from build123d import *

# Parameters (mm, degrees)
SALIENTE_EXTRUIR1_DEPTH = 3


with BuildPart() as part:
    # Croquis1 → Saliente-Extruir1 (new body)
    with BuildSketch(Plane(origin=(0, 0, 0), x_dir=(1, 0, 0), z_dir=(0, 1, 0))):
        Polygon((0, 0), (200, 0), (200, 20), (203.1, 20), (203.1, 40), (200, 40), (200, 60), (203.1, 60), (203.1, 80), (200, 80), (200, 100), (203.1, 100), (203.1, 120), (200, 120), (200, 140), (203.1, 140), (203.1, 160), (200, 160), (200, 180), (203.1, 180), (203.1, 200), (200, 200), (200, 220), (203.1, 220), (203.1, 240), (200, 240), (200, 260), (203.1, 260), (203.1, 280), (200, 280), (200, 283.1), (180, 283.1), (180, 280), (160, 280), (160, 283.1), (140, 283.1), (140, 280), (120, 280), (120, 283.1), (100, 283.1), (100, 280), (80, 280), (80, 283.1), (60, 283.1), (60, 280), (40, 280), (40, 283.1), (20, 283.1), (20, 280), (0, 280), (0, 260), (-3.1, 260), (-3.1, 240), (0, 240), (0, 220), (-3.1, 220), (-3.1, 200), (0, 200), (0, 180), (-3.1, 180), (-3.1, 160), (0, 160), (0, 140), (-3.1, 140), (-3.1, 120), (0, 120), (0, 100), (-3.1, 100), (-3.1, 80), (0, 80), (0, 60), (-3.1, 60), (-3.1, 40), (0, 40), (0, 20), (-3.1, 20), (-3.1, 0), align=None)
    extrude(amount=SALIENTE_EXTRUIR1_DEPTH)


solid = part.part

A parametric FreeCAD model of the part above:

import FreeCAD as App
import Part
import Sketcher

doc = App.newDocument("Part")
body = doc.addObject("PartDesign::Body", "Body")

sketch1 = body.newObject("Sketcher::SketchObject", "Sketch")
sketch1.AttachmentSupport = (doc.getObject("XZ_Plane"), [""])
sketch1.MapMode = "FlatFace"
sketch1.addGeometry([
    Part.LineSegment(App.Vector(200, 0, 0), App.Vector(200, -20, 0)),
    Part.LineSegment(App.Vector(200, -20, 0), App.Vector(203.1, -20, 0)),
    Part.LineSegment(App.Vector(203.1, -20, 0), App.Vector(203.1, -40, 0)),
    Part.LineSegment(App.Vector(203.1, -40, 0), App.Vector(200, -40, 0)),
    Part.LineSegment(App.Vector(200, -40, 0), App.Vector(200, -60, 0)),
    Part.LineSegment(App.Vector(200, -60, 0), App.Vector(203.1, -60, 0)),
    Part.LineSegment(App.Vector(203.1, -60, 0), App.Vector(203.1, -80, 0)),
    Part.LineSegment(App.Vector(203.1, -80, 0), App.Vector(200, -80, 0)),
    Part.LineSegment(App.Vector(200, -80, 0), App.Vector(200, -100, 0)),
    Part.LineSegment(App.Vector(200, -100, 0), App.Vector(203.1, -100, 0)),
    Part.LineSegment(App.Vector(203.1, -100, 0), App.Vector(203.1, -120, 0)),
    Part.LineSegment(App.Vector(203.1, -120, 0), App.Vector(200, -120, 0)),
    Part.LineSegment(App.Vector(200, -120, 0), App.Vector(200, -140, 0)),
    Part.LineSegment(App.Vector(200, -140, 0), App.Vector(203.1, -140, 0)),
    Part.LineSegment(App.Vector(203.1, -140, 0), App.Vector(203.1, -160, 0)),
    Part.LineSegment(App.Vector(203.1, -160, 0), App.Vector(200, -160, 0)),
    Part.LineSegment(App.Vector(200, -160, 0), App.Vector(200, -180, 0)),
    Part.LineSegment(App.Vector(200, -180, 0), App.Vector(203.1, -180, 0)),
    Part.LineSegment(App.Vector(203.1, -180, 0), App.Vector(203.1, -200, 0)),
    Part.LineSegment(App.Vector(203.1, -200, 0), App.Vector(200, -200, 0)),
    Part.LineSegment(App.Vector(200, -200, 0), App.Vector(200, -220, 0)),
    Part.LineSegment(App.Vector(200, -220, 0), App.Vector(203.1, -220, 0)),
    Part.LineSegment(App.Vector(203.1, -220, 0), App.Vector(203.1, -240, 0)),
    Part.LineSegment(App.Vector(203.1, -240, 0), App.Vector(200, -240, 0)),
    Part.LineSegment(App.Vector(200, -240, 0), App.Vector(200, -260, 0)),
    Part.LineSegment(App.Vector(200, -260, 0), App.Vector(203.1, -260, 0)),
    Part.LineSegment(App.Vector(203.1, -260, 0), App.Vector(203.1, -280, 0)),
    Part.LineSegment(App.Vector(203.1, -280, 0), App.Vector(200, -280, 0)),
    Part.LineSegment(App.Vector(200, -280, 0), App.Vector(200, -283.1, 0)),
    Part.LineSegment(App.Vector(200, -283.1, 0), App.Vector(180, -283.1, 0)),
    Part.LineSegment(App.Vector(180, -283.1, 0), App.Vector(180, -280, 0)),
    Part.LineSegment(App.Vector(180, -280, 0), App.Vector(160, -280, 0)),
    Part.LineSegment(App.Vector(160, -280, 0), App.Vector(160, -283.1, 0)),
    Part.LineSegment(App.Vector(160, -283.1, 0), App.Vector(140, -283.1, 0)),
    Part.LineSegment(App.Vector(140, -283.1, 0), App.Vector(140, -280, 0)),
    Part.LineSegment(App.Vector(140, -280, 0), App.Vector(120, -280, 0)),
    Part.LineSegment(App.Vector(120, -280, 0), App.Vector(120, -283.1, 0)),
    Part.LineSegment(App.Vector(120, -283.1, 0), App.Vector(100, -283.1, 0)),
    Part.LineSegment(App.Vector(100, -283.1, 0), App.Vector(100, -280, 0)),
    Part.LineSegment(App.Vector(100, -280, 0), App.Vector(80, -280, 0)),
    Part.LineSegment(App.Vector(80, -280, 0), App.Vector(80, -283.1, 0)),
    Part.LineSegment(App.Vector(80, -283.1, 0), App.Vector(60, -283.1, 0)),
    Part.LineSegment(App.Vector(60, -283.1, 0), App.Vector(60, -280, 0)),
    Part.LineSegment(App.Vector(60, -280, 0), App.Vector(40, -280, 0)),
    Part.LineSegment(App.Vector(40, -280, 0), App.Vector(40, -283.1, 0)),
    Part.LineSegment(App.Vector(40, -283.1, 0), App.Vector(20, -283.1, 0)),
    Part.LineSegment(App.Vector(20, -283.1, 0), App.Vector(20, -280, 0)),
    Part.LineSegment(App.Vector(20, -280, 0), App.Vector(0, -280, 0)),
    Part.LineSegment(App.Vector(0, -280, 0), App.Vector(0, -260, 0)),
    Part.LineSegment(App.Vector(0, -260, 0), App.Vector(-3.1, -260, 0)),
    Part.LineSegment(App.Vector(-3.1, -260, 0), App.Vector(-3.1, -240, 0)),
    Part.LineSegment(App.Vector(-3.1, -240, 0), App.Vector(0, -240, 0)),
    Part.LineSegment(App.Vector(0, -240, 0), App.Vector(0, -220, 0)),
    Part.LineSegment(App.Vector(0, -220, 0), App.Vector(-3.1, -220, 0)),
    Part.LineSegment(App.Vector(-3.1, -220, 0), App.Vector(-3.1, -200, 0)),
    Part.LineSegment(App.Vector(-3.1, -200, 0), App.Vector(0, -200, 0)),
    Part.LineSegment(App.Vector(0, -200, 0), App.Vector(0, -180, 0)),
    Part.LineSegment(App.Vector(0, -180, 0), App.Vector(-3.1, -180, 0)),
    Part.LineSegment(App.Vector(-3.1, -180, 0), App.Vector(-3.1, -160, 0)),
    Part.LineSegment(App.Vector(-3.1, -160, 0), App.Vector(0, -160, 0)),
    Part.LineSegment(App.Vector(0, -160, 0), App.Vector(0, -140, 0)),
    Part.LineSegment(App.Vector(0, -140, 0), App.Vector(-3.1, -140, 0)),
    Part.LineSegment(App.Vector(-3.1, -140, 0), App.Vector(-3.1, -120, 0)),
    Part.LineSegment(App.Vector(-3.1, -120, 0), App.Vector(0, -120, 0)),
    Part.LineSegment(App.Vector(0, -120, 0), App.Vector(0, -100, 0)),
    Part.LineSegment(App.Vector(0, -100, 0), App.Vector(-3.1, -100, 0)),
    Part.LineSegment(App.Vector(-3.1, -100, 0), App.Vector(-3.1, -80, 0)),
    Part.LineSegment(App.Vector(-3.1, -80, 0), App.Vector(0, -80, 0)),
    Part.LineSegment(App.Vector(0, -80, 0), App.Vector(0, -60, 0)),
    Part.LineSegment(App.Vector(0, -60, 0), App.Vector(-3.1, -60, 0)),
    Part.LineSegment(App.Vector(-3.1, -60, 0), App.Vector(-3.1, -40, 0)),
    Part.LineSegment(App.Vector(-3.1, -40, 0), App.Vector(0, -40, 0)),
    Part.LineSegment(App.Vector(0, -40, 0), App.Vector(0, -20, 0)),
    Part.LineSegment(App.Vector(0, -20, 0), App.Vector(-3.1, -20, 0)),
    Part.LineSegment(App.Vector(-3.1, -20, 0), App.Vector(-3.1, 0, 0)),
    Part.LineSegment(App.Vector(-3.1, 0, 0), App.Vector(200, 0, 0)),
], False)
sketch1.addConstraint([
    Sketcher.Constraint("Coincident", 0, 2, 1, 1),
    Sketcher.Constraint("Coincident", 1, 2, 2, 1),
    Sketcher.Constraint("Coincident", 2, 2, 3, 1),
    Sketcher.Constraint("Coincident", 3, 2, 4, 1),
    Sketcher.Constraint("Coincident", 4, 2, 5, 1),
    Sketcher.Constraint("Coincident", 5, 2, 6, 1),
    Sketcher.Constraint("Coincident", 6, 2, 7, 1),
    Sketcher.Constraint("Coincident", 7, 2, 8, 1),
    Sketcher.Constraint("Coincident", 8, 2, 9, 1),
    Sketcher.Constraint("Coincident", 9, 2, 10, 1),
    Sketcher.Constraint("Coincident", 10, 2, 11, 1),
    Sketcher.Constraint("Coincident", 11, 2, 12, 1),
    Sketcher.Constraint("Coincident", 12, 2, 13, 1),
    Sketcher.Constraint("Coincident", 13, 2, 14, 1),
    Sketcher.Constraint("Coincident", 14, 2, 15, 1),
    Sketcher.Constraint("Coincident", 15, 2, 16, 1),
    Sketcher.Constraint("Coincident", 16, 2, 17, 1),
    Sketcher.Constraint("Coincident", 17, 2, 18, 1),
    Sketcher.Constraint("Coincident", 18, 2, 19, 1),
    Sketcher.Constraint("Coincident", 19, 2, 20, 1),
    Sketcher.Constraint("Coincident", 20, 2, 21, 1),
    Sketcher.Constraint("Coincident", 21, 2, 22, 1),
    Sketcher.Constraint("Coincident", 22, 2, 23, 1),
    Sketcher.Constraint("Coincident", 23, 2, 24, 1),
    Sketcher.Constraint("Coincident", 24, 2, 25, 1),
    Sketcher.Constraint("Coincident", 25, 2, 26, 1),
    Sketcher.Constraint("Coincident", 26, 2, 27, 1),
    Sketcher.Constraint("Coincident", 27, 2, 28, 1),
    Sketcher.Constraint("Coincident", 28, 2, 29, 1),
    Sketcher.Constraint("Coincident", 29, 2, 30, 1),
    Sketcher.Constraint("Coincident", 30, 2, 31, 1),
    Sketcher.Constraint("Coincident", 31, 2, 32, 1),
    Sketcher.Constraint("Coincident", 32, 2, 33, 1),
    Sketcher.Constraint("Coincident", 33, 2, 34, 1),
    Sketcher.Constraint("Coincident", 34, 2, 35, 1),
    Sketcher.Constraint("Coincident", 35, 2, 36, 1),
    Sketcher.Constraint("Coincident", 36, 2, 37, 1),
    Sketcher.Constraint("Coincident", 37, 2, 38, 1),
    Sketcher.Constraint("Coincident", 38, 2, 39, 1),
    Sketcher.Constraint("Coincident", 39, 2, 40, 1),
    Sketcher.Constraint("Coincident", 40, 2, 41, 1),
    Sketcher.Constraint("Coincident", 41, 2, 42, 1),
    Sketcher.Constraint("Coincident", 42, 2, 43, 1),
    Sketcher.Constraint("Coincident", 43, 2, 44, 1),
    Sketcher.Constraint("Coincident", 44, 2, 45, 1),
    Sketcher.Constraint("Coincident", 45, 2, 46, 1),
    Sketcher.Constraint("Coincident", 46, 2, 47, 1),
    Sketcher.Constraint("Coincident", 47, 2, 48, 1),
    Sketcher.Constraint("Coincident", 48, 2, 49, 1),
    Sketcher.Constraint("Coincident", 49, 2, 50, 1),
    Sketcher.Constraint("Coincident", 50, 2, 51, 1),
    Sketcher.Constraint("Coincident", 51, 2, 52, 1),
    Sketcher.Constraint("Coincident", 52, 2, 53, 1),
    Sketcher.Constraint("Coincident", 53, 2, 54, 1),
    Sketcher.Constraint("Coincident", 54, 2, 55, 1),
    Sketcher.Constraint("Coincident", 55, 2, 56, 1),
    Sketcher.Constraint("Coincident", 56, 2, 57, 1),
    Sketcher.Constraint("Coincident", 57, 2, 58, 1),
    Sketcher.Constraint("Coincident", 58, 2, 59, 1),
    Sketcher.Constraint("Coincident", 59, 2, 60, 1),
    Sketcher.Constraint("Coincident", 60, 2, 61, 1),
    Sketcher.Constraint("Coincident", 61, 2, 62, 1),
    Sketcher.Constraint("Coincident", 62, 2, 63, 1),
    Sketcher.Constraint("Coincident", 63, 2, 64, 1),
    Sketcher.Constraint("Coincident", 64, 2, 65, 1),
    Sketcher.Constraint("Coincident", 65, 2, 66, 1),
    Sketcher.Constraint("Coincident", 66, 2, 67, 1),
    Sketcher.Constraint("Coincident", 67, 2, 68, 1),
    Sketcher.Constraint("Coincident", 68, 2, 69, 1),
    Sketcher.Constraint("Coincident", 69, 2, 70, 1),
    Sketcher.Constraint("Coincident", 70, 2, 71, 1),
    Sketcher.Constraint("Coincident", 71, 2, 72, 1),
    Sketcher.Constraint("Coincident", 72, 2, 73, 1),
    Sketcher.Constraint("Coincident", 73, 2, 74, 1),
    Sketcher.Constraint("Coincident", 74, 2, 75, 1),
    Sketcher.Constraint("Coincident", 75, 2, 0, 1),
    Sketcher.Constraint("Vertical", 0),
    Sketcher.Constraint("Horizontal", 1),
    Sketcher.Constraint("Vertical", 2),
    Sketcher.Constraint("Horizontal", 3),
    Sketcher.Constraint("Vertical", 4),
    Sketcher.Constraint("Horizontal", 5),
    Sketcher.Constraint("Vertical", 6),
    Sketcher.Constraint("Horizontal", 7),
    Sketcher.Constraint("Vertical", 8),
    Sketcher.Constraint("Horizontal", 9),
    Sketcher.Constraint("Vertical", 10),
    Sketcher.Constraint("Horizontal", 11),
    Sketcher.Constraint("Vertical", 12),
    Sketcher.Constraint("Horizontal", 13),
    Sketcher.Constraint("Vertical", 14),
    Sketcher.Constraint("Horizontal", 15),
    Sketcher.Constraint("Vertical", 16),
    Sketcher.Constraint("Horizontal", 17),
    Sketcher.Constraint("Vertical", 18),
    Sketcher.Constraint("Horizontal", 19),
    Sketcher.Constraint("Vertical", 20),
    Sketcher.Constraint("Horizontal", 21),
    Sketcher.Constraint("Vertical", 22),
    Sketcher.Constraint("Horizontal", 23),
    Sketcher.Constraint("Vertical", 24),
    Sketcher.Constraint("Horizontal", 25),
    Sketcher.Constraint("Vertical", 26),
    Sketcher.Constraint("Horizontal", 27),
    Sketcher.Constraint("Vertical", 28),
    Sketcher.Constraint("Horizontal", 29),
    Sketcher.Constraint("Vertical", 30),
    Sketcher.Constraint("Horizontal", 31),
    Sketcher.Constraint("Vertical", 32),
    Sketcher.Constraint("Horizontal", 33),
    Sketcher.Constraint("Vertical", 34),
    Sketcher.Constraint("Horizontal", 35),
    Sketcher.Constraint("Vertical", 36),
    Sketcher.Constraint("Horizontal", 37),
    Sketcher.Constraint("Vertical", 38),
    Sketcher.Constraint("Horizontal", 39),
    Sketcher.Constraint("Vertical", 40),
    Sketcher.Constraint("Horizontal", 41),
    Sketcher.Constraint("Vertical", 42),
    Sketcher.Constraint("Horizontal", 43),
    Sketcher.Constraint("Vertical", 44),
    Sketcher.Constraint("Horizontal", 45),
    Sketcher.Constraint("Vertical", 46),
    Sketcher.Constraint("Horizontal", 47),
    Sketcher.Constraint("Vertical", 48),
    Sketcher.Constraint("Horizontal", 49),
    Sketcher.Constraint("Vertical", 50),
    Sketcher.Constraint("Horizontal", 51),
    Sketcher.Constraint("Vertical", 52),
    Sketcher.Constraint("Horizontal", 53),
    Sketcher.Constraint("Vertical", 54),
    Sketcher.Constraint("Horizontal", 55),
    Sketcher.Constraint("Vertical", 56),
    Sketcher.Constraint("Horizontal", 57),
    Sketcher.Constraint("Vertical", 58),
    Sketcher.Constraint("Horizontal", 59),
    Sketcher.Constraint("Vertical", 60),
    Sketcher.Constraint("Horizontal", 61),
    Sketcher.Constraint("Vertical", 62),
    Sketcher.Constraint("Horizontal", 63),
    Sketcher.Constraint("Vertical", 64),
    Sketcher.Constraint("Horizontal", 65),
    Sketcher.Constraint("Vertical", 66),
    Sketcher.Constraint("Horizontal", 67),
    Sketcher.Constraint("Vertical", 68),
    Sketcher.Constraint("Horizontal", 69),
    Sketcher.Constraint("Vertical", 70),
    Sketcher.Constraint("Horizontal", 71),
    Sketcher.Constraint("Vertical", 72),
    Sketcher.Constraint("Horizontal", 73),
    Sketcher.Constraint("Vertical", 74),
    Sketcher.Constraint("Horizontal", 75),
    Sketcher.Constraint("PointOnObject", 47, 2, -2),
    Sketcher.Constraint("PointOnObject", 51, 2, -2),
    Sketcher.Constraint("PointOnObject", 55, 2, -2),
    Sketcher.Constraint("PointOnObject", 59, 2, -2),
    Sketcher.Constraint("PointOnObject", 63, 2, -2),
    Sketcher.Constraint("PointOnObject", 67, 2, -2),
    Sketcher.Constraint("PointOnObject", 71, 2, -2),
    Sketcher.Constraint("PointOnObject", 74, 2, -1),
    Sketcher.Constraint("Horizontal", 27, 2, 30, 2),
    Sketcher.Constraint("Horizontal", 29, 2, 32, 2),
    Sketcher.Constraint("Horizontal", 31, 2, 34, 2),
    Sketcher.Constraint("Horizontal", 33, 2, 36, 2),
    Sketcher.Constraint("Horizontal", 35, 2, 38, 2),
    Sketcher.Constraint("Horizontal", 37, 2, 40, 2),
    Sketcher.Constraint("Horizontal", 39, 2, 42, 2),
    Sketcher.Constraint("Horizontal", 41, 2, 44, 2),
    Sketcher.Constraint("Horizontal", 43, 2, 46, 2),
    Sketcher.Constraint("Horizontal", 25, 2, 48, 2),
    Sketcher.Constraint("Horizontal", 23, 2, 50, 2),
    Sketcher.Constraint("Horizontal", 21, 2, 52, 2),
    Sketcher.Constraint("Horizontal", 19, 2, 54, 2),
    Sketcher.Constraint("Horizontal", 17, 2, 56, 2),
    Sketcher.Constraint("Horizontal", 15, 2, 58, 2),
    Sketcher.Constraint("Horizontal", 13, 2, 60, 2),
    Sketcher.Constraint("Horizontal", 11, 2, 62, 2),
    Sketcher.Constraint("Horizontal", 9, 2, 64, 2),
    Sketcher.Constraint("Horizontal", 7, 2, 66, 2),
    Sketcher.Constraint("Horizontal", 5, 2, 68, 2),
    Sketcher.Constraint("Horizontal", 3, 2, 70, 2),
    Sketcher.Constraint("Horizontal", 1, 2, 72, 2),
    Sketcher.Constraint("Vertical", 0, 2, 3, 2),
    Sketcher.Constraint("Vertical", 2, 2, 5, 2),
    Sketcher.Constraint("Vertical", 4, 2, 7, 2),
    Sketcher.Constraint("Vertical", 6, 2, 9, 2),
    Sketcher.Constraint("Vertical", 8, 2, 11, 2),
    Sketcher.Constraint("Vertical", 10, 2, 13, 2),
    Sketcher.Constraint("Vertical", 12, 2, 15, 2),
    Sketcher.Constraint("Vertical", 14, 2, 17, 2),
    Sketcher.Constraint("Vertical", 16, 2, 19, 2),
    Sketcher.Constraint("Vertical", 18, 2, 21, 2),
    Sketcher.Constraint("Vertical", 20, 2, 23, 2),
    Sketcher.Constraint("Vertical", 22, 2, 25, 2),
    Sketcher.Constraint("Vertical", 24, 2, 27, 2),
    Sketcher.Constraint("Vertical", 50, 2, 53, 2),
    Sketcher.Constraint("Vertical", 54, 2, 57, 2),
    Sketcher.Constraint("Vertical", 58, 2, 61, 2),
    Sketcher.Constraint("Vertical", 62, 2, 65, 2),
    Sketcher.Constraint("Vertical", 66, 2, 69, 2),
    Sketcher.Constraint("Vertical", 70, 2, 73, 2),
    Sketcher.Constraint("Equal", 29, 31),
    Sketcher.Constraint("Equal", 31, 33),
    Sketcher.Constraint("Equal", 33, 35),
    Sketcher.Constraint("Equal", 35, 37),
    Sketcher.Constraint("Equal", 37, 39),
    Sketcher.Constraint("Equal", 39, 41),
    Sketcher.Constraint("Equal", 41, 43),
    Sketcher.Constraint("Equal", 43, 45),
    Sketcher.Constraint("Equal", 45, 47),
    Sketcher.Constraint("Equal", 27, 49),
    Sketcher.Constraint("Equal", 47, 0),
    Sketcher.Constraint("Equal", 0, 2),
    Sketcher.Constraint("Equal", 2, 4),
    Sketcher.Constraint("Equal", 4, 6),
    Sketcher.Constraint("Equal", 6, 8),
    Sketcher.Constraint("Equal", 8, 10),
    Sketcher.Constraint("Equal", 10, 12),
    Sketcher.Constraint("Equal", 12, 14),
    Sketcher.Constraint("Equal", 14, 16),
    Sketcher.Constraint("Equal", 16, 18),
    Sketcher.Constraint("Equal", 18, 20),
    Sketcher.Constraint("Equal", 20, 22),
    Sketcher.Constraint("Equal", 22, 24),
    Sketcher.Constraint("Equal", 24, 26),
    Sketcher.Constraint("Equal", 73, 28),
    Sketcher.Constraint("DistanceX", 29, 2, 29, 1, 20.0),
    Sketcher.Constraint("DistanceX", 1, 1, 1, 2, 3.1),
])
pad1 = body.newObject("PartDesign::Pad", "Pad")
pad1.Profile = sketch1
pad1.Length = 3
pad1.Reversed = True

doc.recompute()
